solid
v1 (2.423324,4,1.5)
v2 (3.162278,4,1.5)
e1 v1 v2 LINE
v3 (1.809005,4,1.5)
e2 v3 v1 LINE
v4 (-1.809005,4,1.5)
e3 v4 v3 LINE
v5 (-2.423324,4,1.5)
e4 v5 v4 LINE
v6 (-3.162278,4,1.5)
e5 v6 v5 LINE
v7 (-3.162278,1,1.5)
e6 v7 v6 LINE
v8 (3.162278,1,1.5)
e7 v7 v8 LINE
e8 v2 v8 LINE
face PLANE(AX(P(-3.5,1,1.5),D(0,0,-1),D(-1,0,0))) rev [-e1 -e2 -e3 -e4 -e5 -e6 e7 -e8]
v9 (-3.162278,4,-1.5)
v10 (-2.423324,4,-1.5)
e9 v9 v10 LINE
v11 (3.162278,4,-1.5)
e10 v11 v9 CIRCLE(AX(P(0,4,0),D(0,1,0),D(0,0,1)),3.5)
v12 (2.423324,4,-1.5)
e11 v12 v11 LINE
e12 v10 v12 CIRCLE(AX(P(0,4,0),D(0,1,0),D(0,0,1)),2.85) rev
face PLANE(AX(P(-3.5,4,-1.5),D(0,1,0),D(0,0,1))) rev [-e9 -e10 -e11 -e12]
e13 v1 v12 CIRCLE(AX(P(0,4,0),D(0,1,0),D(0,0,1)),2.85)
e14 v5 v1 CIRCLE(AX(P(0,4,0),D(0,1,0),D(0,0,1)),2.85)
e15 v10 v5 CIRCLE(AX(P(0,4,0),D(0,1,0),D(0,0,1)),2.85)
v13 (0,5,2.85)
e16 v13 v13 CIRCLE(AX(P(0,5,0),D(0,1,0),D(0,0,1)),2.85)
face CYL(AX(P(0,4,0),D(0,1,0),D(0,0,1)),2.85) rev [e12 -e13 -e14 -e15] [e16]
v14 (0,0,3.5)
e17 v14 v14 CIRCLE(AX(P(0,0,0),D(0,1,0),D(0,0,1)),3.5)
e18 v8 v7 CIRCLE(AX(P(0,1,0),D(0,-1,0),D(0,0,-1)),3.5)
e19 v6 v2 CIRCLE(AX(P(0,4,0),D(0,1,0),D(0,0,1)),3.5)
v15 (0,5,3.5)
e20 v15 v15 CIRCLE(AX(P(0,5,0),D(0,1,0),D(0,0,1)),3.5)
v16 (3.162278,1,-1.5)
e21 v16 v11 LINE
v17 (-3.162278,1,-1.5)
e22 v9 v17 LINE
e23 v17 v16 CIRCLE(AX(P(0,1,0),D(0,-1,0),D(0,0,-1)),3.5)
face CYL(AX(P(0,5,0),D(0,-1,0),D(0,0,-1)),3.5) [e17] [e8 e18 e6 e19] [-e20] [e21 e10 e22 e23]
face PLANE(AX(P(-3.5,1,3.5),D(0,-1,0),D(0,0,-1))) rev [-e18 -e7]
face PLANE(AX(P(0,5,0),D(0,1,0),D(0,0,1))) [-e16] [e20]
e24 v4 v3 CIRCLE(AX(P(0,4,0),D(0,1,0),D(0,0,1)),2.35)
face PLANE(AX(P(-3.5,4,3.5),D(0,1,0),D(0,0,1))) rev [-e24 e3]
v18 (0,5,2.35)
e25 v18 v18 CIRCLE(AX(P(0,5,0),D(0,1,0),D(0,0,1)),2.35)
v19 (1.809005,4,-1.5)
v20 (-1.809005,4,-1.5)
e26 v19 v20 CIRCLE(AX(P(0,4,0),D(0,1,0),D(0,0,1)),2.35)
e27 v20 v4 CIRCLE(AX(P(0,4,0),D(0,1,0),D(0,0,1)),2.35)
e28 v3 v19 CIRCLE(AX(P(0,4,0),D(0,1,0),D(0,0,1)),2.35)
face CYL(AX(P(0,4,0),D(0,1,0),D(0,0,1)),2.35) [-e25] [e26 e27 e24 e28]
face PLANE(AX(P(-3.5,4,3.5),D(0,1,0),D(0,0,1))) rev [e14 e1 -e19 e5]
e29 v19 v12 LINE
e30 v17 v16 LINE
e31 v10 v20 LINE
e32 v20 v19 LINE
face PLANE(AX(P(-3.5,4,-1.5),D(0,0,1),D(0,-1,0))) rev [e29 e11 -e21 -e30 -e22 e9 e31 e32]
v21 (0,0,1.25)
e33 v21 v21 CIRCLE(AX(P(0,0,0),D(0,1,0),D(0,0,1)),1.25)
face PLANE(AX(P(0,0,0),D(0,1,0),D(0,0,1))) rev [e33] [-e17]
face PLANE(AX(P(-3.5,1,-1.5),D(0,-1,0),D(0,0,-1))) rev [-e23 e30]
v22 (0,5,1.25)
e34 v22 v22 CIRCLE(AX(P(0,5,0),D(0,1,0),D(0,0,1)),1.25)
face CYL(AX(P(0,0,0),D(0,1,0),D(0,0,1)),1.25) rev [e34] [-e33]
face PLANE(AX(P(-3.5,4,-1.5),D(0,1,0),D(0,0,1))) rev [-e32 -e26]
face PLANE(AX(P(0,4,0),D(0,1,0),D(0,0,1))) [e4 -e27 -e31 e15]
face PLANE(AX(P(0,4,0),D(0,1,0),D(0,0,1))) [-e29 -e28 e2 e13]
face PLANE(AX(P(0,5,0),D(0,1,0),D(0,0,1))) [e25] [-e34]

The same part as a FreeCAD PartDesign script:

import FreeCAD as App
import Part
import Sketcher
from FreeCAD import Vector

doc = App.newDocument("Part")
body = doc.addObject("PartDesign::Body", "Body")

# Sketch on XZ plane
sketch1 = body.newObject("Sketcher::SketchObject", "Sketch")
sketch1.AttachmentSupport = (doc.getObject("XZ_Plane"), [""])
sketch1.MapMode = "FlatFace"
sketch1.addGeometry(Part.Circle(Vector(0, 0, 0), Vector(0, 0, 1), 3.5), False)
sketch1.addConstraint(Sketcher.Constraint("Coincident", 0, 3, -1, 1))
sketch1.addConstraint(Sketcher.Constraint("Diameter", 0, 7.0))
pad1 = body.newObject("PartDesign::Pad", "Pad")
pad1.Profile = sketch1
pad1.Length = 5
pad1.Reversed = True

# Sketch on XZ plane
sketch2 = body.newObject("Sketcher::SketchObject", "Sketch001")
sketch2.AttachmentSupport = (doc.getObject("XZ_Plane"), [""])
sketch2.MapMode = "FlatFace"
sketch2.AttachmentOffset = App.Placement(Vector(0, 0, -5), App.Rotation())
sketch2.addGeometry(Part.Circle(Vector(0, 0, 0), Vector(0, 0, 1), 2.85), False)
sketch2.addGeometry(Part.Circle(Vector(0, 0, 0), Vector(0, 0, 1), 2.35), False)
sketch2.addConstraint(Sketcher.Constraint("Coincident", 0, 3, -1, 1))
sketch2.addConstraint(Sketcher.Constraint("Coincident", 1, 3, -1, 1))
sketch2.addConstraint(Sketcher.Constraint("Diameter", 0, 5.7))
sketch2.addConstraint(Sketcher.Constraint("Diameter", 1, 4.7))
pocket1 = body.newObject("PartDesign::Pocket", "Pocket")
pocket1.Profile = sketch2
pocket1.Length = 1
pocket1.Reversed = True

# Sketch on XZ plane
sketch3 = body.newObject("Sketcher::SketchObject", "Sketch002")
sketch3.AttachmentSupport = (doc.getObject("XZ_Plane"), [""])
sketch3.MapMode = "FlatFace"
sketch3.AttachmentOffset = App.Placement(Vector(0, 0, -5), App.Rotation())
sketch3.addGeometry(Part.Circle(Vector(0, 0, 0), Vector(0, 0, 1), 1.25), False)
sketch3.addConstraint(Sketcher.Constraint("Coincident", 0, 3, -1, 1))
sketch3.addConstraint(Sketcher.Constraint("Diameter", 0, 2.5))
pocket2 = body.newObject("PartDesign::Pocket", "Pocket001")
pocket2.Profile = sketch3
pocket2.Type = "ThroughAll"
pocket2.Reversed = True

# Sketch on YZ plane
sketch4 = body.newObject("Sketcher::SketchObject", "Sketch003")
sketch4.AttachmentSupport = (doc.getObject("YZ_Plane"), [""])
sketch4.MapMode = "FlatFace"
sketch4.addGeometry(Part.LineSegment(Vector(4, 3.5, 0), Vector(1, 3.5, 0)), False)
sketch4.addGeometry(Part.LineSegment(Vector(1, 3.5, 0), Vector(1, 1.5, 0)), False)
sketch4.addGeometry(Part.LineSegment(Vector(1, 1.5, 0), Vector(4, 1.5, 0)), False)
sketch4.addGeometry(Part.LineSegment(Vector(4, 1.5, 0), Vector(4, 3.5, 0)), False)
sketch4.addGeometry(Part.LineSegment(Vector(4, -1.5, 0), Vector(1, -1.5, 0)), False)
sketch4.addGeometry(Part.LineSegment(Vector(1, -1.5, 0), Vector(1, -3.5, 0)), False)
sketch4.addGeometry(Part.LineSegment(Vector(1, -3.5, 0), Vector(4, -3.5, 0)), False)
sketch4.addGeometry(Part.LineSegment(Vector(4, -3.5, 0), Vector(4, -1.5, 0)), False)
sketch4.addConstraint(Sketcher.Constraint("Coincident", 0, 2, 1, 1))
sketch4.addConstraint(Sketcher.Constraint("Coincident", 1, 2, 2, 1))
sketch4.addConstraint(Sketcher.Constraint("Coincident", 2, 2, 3, 1))
sketch4.addConstraint(Sketcher.Constraint("Coincident", 3, 2, 0, 1))
sketch4.addConstraint(Sketcher.Constraint("Coincident", 4, 2, 5, 1))
sketch4.addConstraint(Sketcher.Constraint("Coincident", 5, 2, 6, 1))
sketch4.addConstraint(Sketcher.Constraint("Coincident", 6, 2, 7, 1))
sketch4.addConstraint(Sketcher.Constraint("Coincident", 7, 2, 4, 1))
sketch4.addConstraint(Sketcher.Constraint("Horizontal", 0))
sketch4.addConstraint(Sketcher.Constraint("Vertical", 1))
sketch4.addConstraint(Sketcher.Constraint("Horizontal", 2))
sketch4.addConstraint(Sketcher.Constraint("Vertical", 3))
sketch4.addConstraint(Sketcher.Constraint("Horizontal", 4))
sketch4.addConstraint(Sketcher.Constraint("Vertical", 5))
sketch4.addConstraint(Sketcher.Constraint("Horizontal", 6))
sketch4.addConstraint(Sketcher.Constraint("Vertical", 7))
sketch4.addConstraint(Sketcher.Constraint("Symmetric", 1, 2, 4, 2, -1))
sketch4.addConstraint(Sketcher.Constraint("Symmetric", 3, 2, 6, 2, -1))
sketch4.addConstraint(Sketcher.Constraint("DistanceX", 0, 2, 0, 1, 3.0))
sketch4.addConstraint(Sketcher.Constraint("DistanceY", 1, 2, 1, 1, 2.0))
sketch4.addConstraint(Sketcher.Constraint("DistanceX", -1, 1, 0, 2, 1.0))
sketch4.addConstraint(Sketcher.Constraint("DistanceY", 4, 2, 1, 2, 3.0))
pocket3 = body.newObject("PartDesign::Pocket", "Pocket002")
pocket3.Profile = sketch4
pocket3.Type = "ThroughAll"
pocket3.Midplane = True

doc.recompute()
